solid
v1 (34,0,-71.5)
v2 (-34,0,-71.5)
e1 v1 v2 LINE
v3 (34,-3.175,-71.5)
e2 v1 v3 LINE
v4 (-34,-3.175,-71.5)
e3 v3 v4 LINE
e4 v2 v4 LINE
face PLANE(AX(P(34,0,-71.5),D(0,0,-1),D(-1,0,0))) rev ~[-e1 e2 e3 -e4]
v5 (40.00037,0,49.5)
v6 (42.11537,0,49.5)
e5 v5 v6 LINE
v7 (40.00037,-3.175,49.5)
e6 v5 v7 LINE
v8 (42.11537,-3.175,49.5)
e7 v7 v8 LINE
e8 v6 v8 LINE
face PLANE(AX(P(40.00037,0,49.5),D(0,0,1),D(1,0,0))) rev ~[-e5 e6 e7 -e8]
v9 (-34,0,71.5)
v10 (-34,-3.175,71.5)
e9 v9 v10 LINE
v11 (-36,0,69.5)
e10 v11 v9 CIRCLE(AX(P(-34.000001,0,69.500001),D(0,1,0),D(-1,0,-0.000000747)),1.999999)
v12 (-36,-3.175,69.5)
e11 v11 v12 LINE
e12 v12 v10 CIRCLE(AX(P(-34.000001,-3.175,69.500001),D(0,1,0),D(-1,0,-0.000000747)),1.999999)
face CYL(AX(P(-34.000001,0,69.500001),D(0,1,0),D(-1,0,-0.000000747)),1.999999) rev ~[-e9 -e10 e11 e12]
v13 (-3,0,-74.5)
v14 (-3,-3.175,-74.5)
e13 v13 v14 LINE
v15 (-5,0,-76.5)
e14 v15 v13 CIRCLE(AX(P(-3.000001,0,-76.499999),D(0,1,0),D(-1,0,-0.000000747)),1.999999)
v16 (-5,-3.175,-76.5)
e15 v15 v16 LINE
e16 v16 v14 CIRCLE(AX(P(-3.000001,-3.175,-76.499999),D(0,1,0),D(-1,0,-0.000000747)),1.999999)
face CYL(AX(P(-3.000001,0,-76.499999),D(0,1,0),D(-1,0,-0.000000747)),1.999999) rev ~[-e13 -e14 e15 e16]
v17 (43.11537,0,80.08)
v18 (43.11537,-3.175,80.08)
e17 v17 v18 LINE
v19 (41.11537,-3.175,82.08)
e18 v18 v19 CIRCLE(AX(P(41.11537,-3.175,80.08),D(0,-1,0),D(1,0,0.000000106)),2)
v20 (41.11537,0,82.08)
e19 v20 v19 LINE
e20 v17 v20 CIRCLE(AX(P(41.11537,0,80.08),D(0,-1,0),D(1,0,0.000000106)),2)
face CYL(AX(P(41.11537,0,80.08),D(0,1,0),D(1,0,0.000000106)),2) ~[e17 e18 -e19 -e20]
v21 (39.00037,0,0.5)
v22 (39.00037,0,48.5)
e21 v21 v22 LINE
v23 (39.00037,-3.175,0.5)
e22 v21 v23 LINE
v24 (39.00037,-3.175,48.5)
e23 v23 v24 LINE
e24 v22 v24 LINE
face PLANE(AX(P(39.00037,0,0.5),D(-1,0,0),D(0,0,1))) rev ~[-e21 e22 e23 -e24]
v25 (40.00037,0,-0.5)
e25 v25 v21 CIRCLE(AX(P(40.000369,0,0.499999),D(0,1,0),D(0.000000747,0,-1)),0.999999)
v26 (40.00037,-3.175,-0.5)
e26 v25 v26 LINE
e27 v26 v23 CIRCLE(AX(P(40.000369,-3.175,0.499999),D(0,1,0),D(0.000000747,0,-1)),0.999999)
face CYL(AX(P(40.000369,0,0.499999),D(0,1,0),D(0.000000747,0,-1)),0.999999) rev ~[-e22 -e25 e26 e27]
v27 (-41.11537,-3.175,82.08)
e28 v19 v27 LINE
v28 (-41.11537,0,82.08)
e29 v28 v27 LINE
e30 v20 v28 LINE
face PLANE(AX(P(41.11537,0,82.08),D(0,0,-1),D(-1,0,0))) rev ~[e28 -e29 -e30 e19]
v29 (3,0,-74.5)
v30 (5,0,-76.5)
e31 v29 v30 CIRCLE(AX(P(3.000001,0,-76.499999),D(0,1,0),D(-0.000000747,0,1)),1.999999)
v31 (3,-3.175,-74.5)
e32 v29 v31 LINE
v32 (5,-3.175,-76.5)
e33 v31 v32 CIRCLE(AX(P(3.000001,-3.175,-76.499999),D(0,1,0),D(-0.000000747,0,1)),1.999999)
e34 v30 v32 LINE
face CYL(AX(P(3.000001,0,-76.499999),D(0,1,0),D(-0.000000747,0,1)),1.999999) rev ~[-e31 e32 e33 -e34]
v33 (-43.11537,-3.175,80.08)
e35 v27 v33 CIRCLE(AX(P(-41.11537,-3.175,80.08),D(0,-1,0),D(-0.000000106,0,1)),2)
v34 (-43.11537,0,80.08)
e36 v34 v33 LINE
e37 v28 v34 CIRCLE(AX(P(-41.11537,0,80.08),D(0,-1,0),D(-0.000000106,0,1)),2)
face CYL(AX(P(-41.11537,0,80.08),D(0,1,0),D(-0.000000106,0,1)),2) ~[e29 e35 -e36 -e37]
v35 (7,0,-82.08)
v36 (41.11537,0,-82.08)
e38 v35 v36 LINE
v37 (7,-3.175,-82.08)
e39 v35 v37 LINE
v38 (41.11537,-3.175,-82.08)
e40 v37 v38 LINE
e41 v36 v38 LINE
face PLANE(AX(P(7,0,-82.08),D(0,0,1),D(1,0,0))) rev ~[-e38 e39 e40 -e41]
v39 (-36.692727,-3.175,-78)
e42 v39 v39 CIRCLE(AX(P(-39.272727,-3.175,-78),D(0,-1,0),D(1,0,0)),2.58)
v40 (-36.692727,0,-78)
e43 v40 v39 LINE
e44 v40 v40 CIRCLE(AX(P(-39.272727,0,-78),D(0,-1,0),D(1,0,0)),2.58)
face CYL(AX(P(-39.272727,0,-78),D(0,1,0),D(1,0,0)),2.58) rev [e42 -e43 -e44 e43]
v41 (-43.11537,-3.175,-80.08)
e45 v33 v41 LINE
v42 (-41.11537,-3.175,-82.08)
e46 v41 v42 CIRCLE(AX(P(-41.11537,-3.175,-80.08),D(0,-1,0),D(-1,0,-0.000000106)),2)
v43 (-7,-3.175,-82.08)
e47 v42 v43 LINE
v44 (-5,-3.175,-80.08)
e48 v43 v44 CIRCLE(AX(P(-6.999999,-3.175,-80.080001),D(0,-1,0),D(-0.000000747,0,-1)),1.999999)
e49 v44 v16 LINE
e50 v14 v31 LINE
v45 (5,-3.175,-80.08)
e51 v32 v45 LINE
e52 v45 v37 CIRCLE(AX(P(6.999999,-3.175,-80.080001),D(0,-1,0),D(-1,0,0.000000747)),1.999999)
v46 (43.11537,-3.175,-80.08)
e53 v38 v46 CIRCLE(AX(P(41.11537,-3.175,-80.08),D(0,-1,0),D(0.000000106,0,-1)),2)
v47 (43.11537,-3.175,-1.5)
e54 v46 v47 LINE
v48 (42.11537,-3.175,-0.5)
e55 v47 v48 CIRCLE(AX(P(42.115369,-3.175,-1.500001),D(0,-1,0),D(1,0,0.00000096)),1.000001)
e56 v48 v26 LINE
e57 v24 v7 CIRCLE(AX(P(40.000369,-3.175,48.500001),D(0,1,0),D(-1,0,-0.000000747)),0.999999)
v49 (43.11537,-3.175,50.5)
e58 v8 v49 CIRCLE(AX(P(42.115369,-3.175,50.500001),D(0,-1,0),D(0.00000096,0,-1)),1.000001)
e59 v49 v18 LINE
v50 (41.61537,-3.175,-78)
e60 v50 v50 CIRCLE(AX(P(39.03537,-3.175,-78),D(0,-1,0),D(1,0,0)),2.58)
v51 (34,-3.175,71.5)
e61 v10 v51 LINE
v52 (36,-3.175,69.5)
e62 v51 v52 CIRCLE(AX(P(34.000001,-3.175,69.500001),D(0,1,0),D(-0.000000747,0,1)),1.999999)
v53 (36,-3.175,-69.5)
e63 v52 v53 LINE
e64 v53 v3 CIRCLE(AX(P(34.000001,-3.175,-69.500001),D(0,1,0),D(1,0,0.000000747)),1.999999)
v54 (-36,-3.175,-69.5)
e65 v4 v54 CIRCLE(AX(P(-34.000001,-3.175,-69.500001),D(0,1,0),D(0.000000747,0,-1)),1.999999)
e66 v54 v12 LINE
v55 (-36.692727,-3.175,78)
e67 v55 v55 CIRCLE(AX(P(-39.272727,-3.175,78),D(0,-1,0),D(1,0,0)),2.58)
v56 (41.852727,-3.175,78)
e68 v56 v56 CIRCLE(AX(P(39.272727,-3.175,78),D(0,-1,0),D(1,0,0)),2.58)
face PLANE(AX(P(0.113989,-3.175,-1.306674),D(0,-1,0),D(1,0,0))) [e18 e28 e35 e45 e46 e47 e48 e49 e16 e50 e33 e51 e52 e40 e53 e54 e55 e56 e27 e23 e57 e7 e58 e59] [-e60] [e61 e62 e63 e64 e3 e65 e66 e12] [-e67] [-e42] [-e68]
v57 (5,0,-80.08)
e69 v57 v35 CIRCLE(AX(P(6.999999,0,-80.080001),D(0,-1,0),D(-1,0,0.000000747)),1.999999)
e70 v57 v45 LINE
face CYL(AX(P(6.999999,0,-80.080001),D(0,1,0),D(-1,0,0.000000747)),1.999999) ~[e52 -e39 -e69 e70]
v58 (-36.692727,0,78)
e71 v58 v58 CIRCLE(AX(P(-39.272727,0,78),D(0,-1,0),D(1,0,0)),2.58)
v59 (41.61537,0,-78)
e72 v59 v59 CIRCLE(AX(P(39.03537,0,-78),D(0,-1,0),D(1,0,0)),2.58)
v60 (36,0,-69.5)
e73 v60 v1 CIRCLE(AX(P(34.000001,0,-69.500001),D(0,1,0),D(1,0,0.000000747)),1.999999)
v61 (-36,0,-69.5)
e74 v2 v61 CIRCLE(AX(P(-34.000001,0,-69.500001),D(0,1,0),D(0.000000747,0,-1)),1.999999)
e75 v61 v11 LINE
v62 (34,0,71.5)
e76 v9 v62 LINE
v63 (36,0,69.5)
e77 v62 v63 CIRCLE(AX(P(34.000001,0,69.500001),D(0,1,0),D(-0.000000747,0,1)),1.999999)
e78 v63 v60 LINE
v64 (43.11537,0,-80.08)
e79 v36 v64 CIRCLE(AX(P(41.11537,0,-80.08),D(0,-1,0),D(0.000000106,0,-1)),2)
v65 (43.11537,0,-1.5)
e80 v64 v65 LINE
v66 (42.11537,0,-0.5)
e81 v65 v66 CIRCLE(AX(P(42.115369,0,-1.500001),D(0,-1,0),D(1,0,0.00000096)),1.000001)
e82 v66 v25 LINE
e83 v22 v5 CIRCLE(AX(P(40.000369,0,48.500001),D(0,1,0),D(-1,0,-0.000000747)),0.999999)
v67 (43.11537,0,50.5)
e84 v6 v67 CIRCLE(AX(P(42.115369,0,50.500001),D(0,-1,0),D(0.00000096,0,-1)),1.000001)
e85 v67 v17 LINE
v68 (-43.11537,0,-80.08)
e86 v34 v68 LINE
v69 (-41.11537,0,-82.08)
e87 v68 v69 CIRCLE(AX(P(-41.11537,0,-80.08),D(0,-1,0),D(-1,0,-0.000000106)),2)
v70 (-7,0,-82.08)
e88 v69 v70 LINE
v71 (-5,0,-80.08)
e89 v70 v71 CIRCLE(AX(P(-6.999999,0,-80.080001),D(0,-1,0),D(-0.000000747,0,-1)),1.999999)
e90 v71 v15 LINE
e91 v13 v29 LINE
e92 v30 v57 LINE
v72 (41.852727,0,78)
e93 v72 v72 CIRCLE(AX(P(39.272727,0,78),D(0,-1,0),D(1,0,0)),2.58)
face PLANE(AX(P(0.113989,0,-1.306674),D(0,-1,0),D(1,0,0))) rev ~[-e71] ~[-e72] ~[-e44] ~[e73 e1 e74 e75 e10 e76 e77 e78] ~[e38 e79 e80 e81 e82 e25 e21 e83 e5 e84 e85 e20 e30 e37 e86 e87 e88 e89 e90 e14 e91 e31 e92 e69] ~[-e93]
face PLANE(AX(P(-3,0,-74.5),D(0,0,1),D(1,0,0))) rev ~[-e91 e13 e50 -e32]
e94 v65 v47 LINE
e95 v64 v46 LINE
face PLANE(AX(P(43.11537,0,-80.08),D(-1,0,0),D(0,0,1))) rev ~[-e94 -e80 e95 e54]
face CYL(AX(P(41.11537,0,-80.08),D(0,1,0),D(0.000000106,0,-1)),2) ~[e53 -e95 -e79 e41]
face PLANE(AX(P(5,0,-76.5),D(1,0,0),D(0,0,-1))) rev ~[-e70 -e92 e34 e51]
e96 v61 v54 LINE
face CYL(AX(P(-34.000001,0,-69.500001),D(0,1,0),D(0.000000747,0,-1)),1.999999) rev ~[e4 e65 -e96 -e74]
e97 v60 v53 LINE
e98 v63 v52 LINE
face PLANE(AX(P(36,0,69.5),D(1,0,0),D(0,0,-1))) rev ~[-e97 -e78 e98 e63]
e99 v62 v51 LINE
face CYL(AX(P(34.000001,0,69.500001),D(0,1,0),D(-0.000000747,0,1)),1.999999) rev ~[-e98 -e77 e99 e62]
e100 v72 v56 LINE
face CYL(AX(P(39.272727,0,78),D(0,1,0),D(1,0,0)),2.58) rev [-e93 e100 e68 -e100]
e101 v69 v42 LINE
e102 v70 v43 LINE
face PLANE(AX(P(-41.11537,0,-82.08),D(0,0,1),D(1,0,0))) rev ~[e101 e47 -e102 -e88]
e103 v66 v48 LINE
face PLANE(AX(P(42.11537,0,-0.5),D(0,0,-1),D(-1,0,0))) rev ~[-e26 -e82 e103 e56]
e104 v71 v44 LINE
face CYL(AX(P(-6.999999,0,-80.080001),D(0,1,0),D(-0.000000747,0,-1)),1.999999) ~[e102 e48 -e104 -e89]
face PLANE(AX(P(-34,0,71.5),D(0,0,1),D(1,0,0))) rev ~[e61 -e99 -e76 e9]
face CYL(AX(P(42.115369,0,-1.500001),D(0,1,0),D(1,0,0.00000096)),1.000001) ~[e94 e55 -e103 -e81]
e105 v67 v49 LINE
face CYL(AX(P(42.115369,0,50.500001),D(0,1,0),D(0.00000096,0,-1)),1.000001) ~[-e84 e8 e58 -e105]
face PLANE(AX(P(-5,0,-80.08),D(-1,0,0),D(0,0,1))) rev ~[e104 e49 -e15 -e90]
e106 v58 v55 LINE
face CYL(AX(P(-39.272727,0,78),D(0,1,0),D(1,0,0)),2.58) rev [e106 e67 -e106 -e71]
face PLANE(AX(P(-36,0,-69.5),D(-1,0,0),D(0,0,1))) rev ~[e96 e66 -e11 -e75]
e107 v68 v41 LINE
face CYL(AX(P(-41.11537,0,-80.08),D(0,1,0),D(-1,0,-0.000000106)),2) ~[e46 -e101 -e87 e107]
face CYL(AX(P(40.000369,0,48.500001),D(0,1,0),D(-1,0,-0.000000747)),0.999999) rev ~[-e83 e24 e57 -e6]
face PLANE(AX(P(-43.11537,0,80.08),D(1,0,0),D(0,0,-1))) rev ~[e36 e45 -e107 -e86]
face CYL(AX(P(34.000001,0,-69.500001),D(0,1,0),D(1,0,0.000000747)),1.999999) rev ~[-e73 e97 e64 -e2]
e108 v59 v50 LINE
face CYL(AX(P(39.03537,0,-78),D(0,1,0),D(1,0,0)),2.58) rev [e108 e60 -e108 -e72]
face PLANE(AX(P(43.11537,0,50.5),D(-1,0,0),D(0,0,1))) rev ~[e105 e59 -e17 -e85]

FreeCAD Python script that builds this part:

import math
import FreeCAD as App
import Part
import Sketcher
Q = App.Units.Quantity

doc = App.newDocument("Part")
body = doc.addObject("PartDesign::Body", "Body")

sketch1 = doc.addObject("Sketcher::SketchObject", "Sketch")
body.addObject(sketch1)
sketch1.AttachmentSupport = (doc.XZ_Plane, [""])
sketch1.MapMode = "FlatFace"
sketch1.addGeometry([
    Part.ArcOfCircle(Part.Circle(App.Vector(41.1, 80.1, 0), App.Vector(0, 0, 1), 2), math.radians(0), math.radians(90)),
    Part.LineSegment(App.Vector(41.1, 82.1, 0), App.Vector(-41.1, 82.1, 0)),
    Part.ArcOfCircle(Part.Circle(App.Vector(-41.1, 80.1, 0), App.Vector(0, 0, 1), 2), math.radians(90), math.radians(180)),
    Part.LineSegment(App.Vector(-43.1, 80.1, 0), App.Vector(-43.1, -80.1, 0)),
    Part.ArcOfCircle(Part.Circle(App.Vector(-41.1, -80.1, 0), App.Vector(0, 0, 1), 2), math.radians(-180), math.radians(-90)),
    Part.LineSegment(App.Vector(-41.1, -82.1, 0), App.Vector(-7, -82.1, 0)),
    Part.ArcOfCircle(Part.Circle(App.Vector(-7, -80.1, 0), App.Vector(0, 0, 1), 2), math.radians(-90), math.radians(0)),
    Part.LineSegment(App.Vector(-5, -80.1, 0), App.Vector(-5, -76.5, 0)),
    Part.ArcOfCircle(Part.Circle(App.Vector(-3, -76.5, 0), App.Vector(0, 0, 1), 2), math.radians(90), math.radians(180)),
    Part.LineSegment(App.Vector(-3, -74.5, 0), App.Vector(3, -74.5, 0)),
    Part.ArcOfCircle(Part.Circle(App.Vector(3, -76.5, 0), App.Vector(0, 0, 1), 2), math.radians(0), math.radians(90)),
    Part.LineSegment(App.Vector(5, -76.5, 0), App.Vector(5, -80.1, 0)),
    Part.ArcOfCircle(Part.Circle(App.Vector(7, -80.1, 0), App.Vector(0, 0, 1), 2), math.radians(180), math.radians(270)),
    Part.LineSegment(App.Vector(7, -82.1, 0), App.Vector(41.1, -82.1, 0)),
    Part.ArcOfCircle(Part.Circle(App.Vector(41.1, -80.1, 0), App.Vector(0, 0, 1), 2), math.radians(-90), math.radians(0)),
    Part.LineSegment(App.Vector(43.1, -80.1, 0), App.Vector(43.1, -1.5, 0)),
    Part.ArcOfCircle(Part.Circle(App.Vector(42.1, -1.5, 0), App.Vector(0, 0, 1), 1), math.radians(0), math.radians(90)),
    Part.LineSegment(App.Vector(42.1, -0.5, 0), App.Vector(40, -0.5, 0)),
    Part.ArcOfCircle(Part.Circle(App.Vector(40, 0.5, 0), App.Vector(0, 0, 1), 1), math.radians(180), math.radians(270)),
    Part.LineSegment(App.Vector(39, 0.5, 0), App.Vector(39, 48.5, 0)),
    Part.ArcOfCircle(Part.Circle(App.Vector(40, 48.5, 0), App.Vector(0, 0, 1), 1), math.radians(90), math.radians(180)),
    Part.LineSegment(App.Vector(40, 49.5, 0), App.Vector(42.1, 49.5, 0)),
    Part.ArcOfCircle(Part.Circle(App.Vector(42.1, 50.5, 0), App.Vector(0, 0, 1), 1), math.radians(-90), math.radians(0)),
    Part.LineSegment(App.Vector(43.1, 50.5, 0), App.Vector(43.1, 80.1, 0)),
    Part.Circle(App.Vector(-39.3, -78, 0), App.Vector(0, 0, 1), 2.6),
    Part.Circle(App.Vector(39, -78, 0), App.Vector(0, 0, 1), 2.6),
    Part.Circle(App.Vector(-39.3, 78, 0), App.Vector(0, 0, 1), 2.6),
    Part.ArcOfCircle(Part.Circle(App.Vector(-34, 69.5, 0), App.Vector(0, 0, 1), 2), math.radians(90), math.radians(180)),
    Part.LineSegment(App.Vector(-34, 71.5, 0), App.Vector(34, 71.5, 0)),
    Part.ArcOfCircle(Part.Circle(App.Vector(34, 69.5, 0), App.Vector(0, 0, 1), 2), math.radians(0), math.radians(90)),
    Part.LineSegment(App.Vector(36, 69.5, 0), App.Vector(36, -69.5, 0)),
    Part.ArcOfCircle(Part.Circle(App.Vector(34, -69.5, 0), App.Vector(0, 0, 1), 2), math.radians(-90), math.radians(0)),
    Part.LineSegment(App.Vector(34, -71.5, 0), App.Vector(-34, -71.5, 0)),
    Part.ArcOfCircle(Part.Circle(App.Vector(-34, -69.5, 0), App.Vector(0, 0, 1), 2), math.radians(180), math.radians(270)),
    Part.LineSegment(App.Vector(-36, -69.5, 0), App.Vector(-36, 69.5, 0)),
    Part.Circle(App.Vector(39.3, 78, 0), App.Vector(0, 0, 1), 2.6),
], False)
sketch1.addConstraint([
    Sketcher.Constraint("Tangent", 0, 2, 1, 1),
    Sketcher.Constraint("Tangent", 1, 2, 2, 1),
    Sketcher.Constraint("Tangent", 2, 2, 3, 1),
    Sketcher.Constraint("Tangent", 3, 2, 4, 1),
    Sketcher.Constraint("Tangent", 4, 2, 5, 1),
    Sketcher.Constraint("Tangent", 5, 2, 6, 1),
    Sketcher.Constraint("Tangent", 6, 2, 7, 1),
    Sketcher.Constraint("Tangent", 7, 2, 8, 2),
    Sketcher.Constraint("Tangent", 8, 1, 9, 1),
    Sketcher.Constraint("Tangent", 9, 2, 10, 2),
    Sketcher.Constraint("Tangent", 10, 1, 11, 1),
    Sketcher.Constraint("Tangent", 11, 2, 12, 1),
    Sketcher.Constraint("Tangent", 12, 2, 13, 1),
    Sketcher.Constraint("Tangent", 13, 2, 14, 1),
    Sketcher.Constraint("Tangent", 14, 2, 15, 1),
    Sketcher.Constraint("Tangent", 15, 2, 16, 1),
    Sketcher.Constraint("Tangent", 16, 2, 17, 1),
    Sketcher.Constraint("Tangent", 17, 2, 18, 2),
    Sketcher.Constraint("Tangent", 18, 1, 19, 1),
    Sketcher.Constraint("Tangent", 19, 2, 20, 2),
    Sketcher.Constraint("Tangent", 20, 1, 21, 1),
    Sketcher.Constraint("Tangent", 21, 2, 22, 1),
    Sketcher.Constraint("Tangent", 22, 2, 23, 1),
    Sketcher.Constraint("Tangent", 23, 2, 0, 1),
    Sketcher.Constraint("Tangent", 27, 1, 28, 1),
    Sketcher.Constraint("Tangent", 28, 2, 29, 2),
    Sketcher.Constraint("Tangent", 29, 1, 30, 1),
    Sketcher.Constraint("Tangent", 30, 2, 31, 2),
    Sketcher.Constraint("Tangent", 31, 1, 32, 1),
    Sketcher.Constraint("Tangent", 32, 2, 33, 2),
    Sketcher.Constraint("Tangent", 33, 1, 34, 1),
    Sketcher.Constraint("Tangent", 34, 2, 27, 2),
    Sketcher.Constraint("Horizontal", 1),
    Sketcher.Constraint("Vertical", 3),
    Sketcher.Constraint("Horizontal", 5),
    Sketcher.Constraint("Vertical", 7),
    Sketcher.Constraint("Horizontal", 9),
    Sketcher.Constraint("Vertical", 11),
    Sketcher.Constraint("Horizontal", 13),
    Sketcher.Constraint("Vertical", 15),
    Sketcher.Constraint("Horizontal", 17),
    Sketcher.Constraint("Vertical", 19),
    Sketcher.Constraint("Horizontal", 21),
    Sketcher.Constraint("Vertical", 23),
    Sketcher.Constraint("Horizontal", 28),
    Sketcher.Constraint("Vertical", 30),
    Sketcher.Constraint("Horizontal", 32),
    Sketcher.Constraint("Vertical", 34),
    Sketcher.Constraint("Equal", 0, 2),
    Sketcher.Constraint("Equal", 2, 4),
    Sketcher.Constraint("Equal", 4, 6),
    Sketcher.Constraint("Equal", 6, 8),
    Sketcher.Constraint("Equal", 8, 10),
    Sketcher.Constraint("Equal", 10, 12),
    Sketcher.Constraint("Equal", 12, 14),
    Sketcher.Constraint("Equal", 16, 18),
    Sketcher.Constraint("Equal", 18, 20),
    Sketcher.Constraint("Equal", 20, 22),
    Sketcher.Constraint("Equal", 24, 25),
    Sketcher.Constraint("Equal", 25, 26),
    Sketcher.Constraint("Equal", 14, 27),
    Sketcher.Constraint("Equal", 27, 29),
    Sketcher.Constraint("Equal", 29, 31),
    Sketcher.Constraint("Equal", 31, 33),
    Sketcher.Constraint("Equal", 26, 35),
    Sketcher.Constraint("Symmetric", 0, 3, 4, 3, -1, 1),
    Sketcher.Constraint("Symmetric", 2, 3, 14, 3, -1, 1),
    Sketcher.Constraint("Symmetric", 27, 3, 31, 3, -1, 1),
    Sketcher.Constraint("Symmetric", 24, 3, 35, 3, -1, 1),
    Sketcher.Constraint("Symmetric", 26, 3, 35, 3, -2),
    Sketcher.Constraint("Horizontal", 24, 3, 25, 3),
    Sketcher.Constraint("Equal", 5, 13),
    Sketcher.Constraint("Radius", 0, Q("2 mm")),
    Sketcher.Constraint("Radius", 16, Q("1.000001 mm")),
    Sketcher.Constraint("Diameter", 24, Q("5.16 mm")),
    Sketcher.Constraint("DistanceX", 9, 1, 9, 2, Q("6 mm")),
    Sketcher.Constraint("DistanceX", 28, 1, 28, 2, Q("68 mm")),
    Sketcher.Constraint("DistanceY", 19, 1, 19, 2, Q("48 mm")),
    Sketcher.Constraint("DistanceY", 30, 2, 30, 1, Q("139 mm")),
    Sketcher.Constraint("DistanceY", 24, 3, -1, 1, Q("78 mm")),
    Sketcher.Constraint("DistanceY", 20, 3, 27, 3, Q("21.000001 mm")),
    Sketcher.Constraint("DistanceY", 3, 2, 3, 1, Q("160.16 mm")),
    Sketcher.Constraint("DistanceY", 7, 1, 7, 2, Q("3.58 mm")),
    Sketcher.Constraint("DistanceX", 17, 2, 17, 1, Q("2.115 mm")),
    Sketcher.Constraint("DistanceX", 25, 3, 14, 3, Q("2.08 mm")),
    Sketcher.Constraint("DistanceX", 1, 2, 1, 1, Q("82.23074 mm")),
    Sketcher.Constraint("DistanceX", 24, 3, 6, 3, Q("32.272728 mm")),
])
pad1 = doc.addObject("PartDesign::Pad", "Pad")
body.addObject(pad1)
pad1.Profile = sketch1
pad1.Length = 3.175

doc.recompute()
